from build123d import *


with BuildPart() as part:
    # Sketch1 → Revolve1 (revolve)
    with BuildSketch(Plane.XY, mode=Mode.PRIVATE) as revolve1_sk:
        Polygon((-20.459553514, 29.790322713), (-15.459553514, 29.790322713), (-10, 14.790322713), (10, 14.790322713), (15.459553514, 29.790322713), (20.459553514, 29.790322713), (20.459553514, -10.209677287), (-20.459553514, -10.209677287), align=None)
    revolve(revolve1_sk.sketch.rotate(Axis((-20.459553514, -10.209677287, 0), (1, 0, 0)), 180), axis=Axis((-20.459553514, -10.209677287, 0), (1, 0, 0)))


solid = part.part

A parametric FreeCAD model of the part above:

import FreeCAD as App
import Part
import Sketcher
from FreeCAD import Vector
Q = App.Units.Quantity

doc = App.newDocument("Part")
body = doc.addObject("PartDesign::Body", "Body")

sketch1 = doc.addObject("Sketcher::SketchObject", "Sketch")
body.addObject(sketch1)
sketch1.AttachmentSupport = (doc.XY_Plane, [""])
sketch1.MapMode = "FlatFace"
sketch1.addGeometry([
    Part.LineSegment(Vector(-15, 30, 0), Vector(-20, 30, 0)),
    Part.LineSegment(Vector(-20, 30, 0), Vector(-20, -10, 0)),
    Part.LineSegment(Vector(-20, -10, 0), Vector(20, -10, 0)),
    Part.LineSegment(Vector(20, -10, 0), Vector(20, 30, 0)),
    Part.LineSegment(Vector(20, 30, 0), Vector(15, 30, 0)),
    Part.LineSegment(Vector(15, 30, 0), Vector(10, 15, 0)),
    Part.LineSegment(Vector(10, 15, 0), Vector(-10, 15, 0)),
    Part.LineSegment(Vector(-10, 15, 0), Vector(-15, 30, 0)),
], False)
sketch1.addGeometry(Part.LineSegment(Vector(-20, -10, 0), Vector(20, -10, 0)), True)
sketch1.addConstraint([
    Sketcher.Constraint("Coincident", 0, 2, 1, 1),
    Sketcher.Constraint("Coincident", 1, 2, 2, 1),
    Sketcher.Constraint("Coincident", 2, 2, 3, 1),
    Sketcher.Constraint("Coincident", 3, 2, 4, 1),
    Sketcher.Constraint("Coincident", 4, 2, 5, 1),
    Sketcher.Constraint("Coincident", 5, 2, 6, 1),
    Sketcher.Constraint("Coincident", 6, 2, 7, 1),
    Sketcher.Constraint("Coincident", 7, 2, 0, 1),
    Sketcher.Constraint("Horizontal", 0),
    Sketcher.Constraint("Vertical", 1),
    Sketcher.Constraint("Horizontal", 2),
    Sketcher.Constraint("Vertical", 3),
    Sketcher.Constraint("Horizontal", 4),
    Sketcher.Constraint("Horizontal", 6),
    Sketcher.Constraint("Horizontal", 8),
    Sketcher.Constraint("Coincident", 8, 1, 1, 2),
    Sketcher.Constraint("Symmetric", 0, 2, 3, 2, -2),
    Sketcher.Constraint("Vertical", 3, 2, 8, 2),
    Sketcher.Constraint("Equal", 0, 4),
    Sketcher.Constraint("Equal", 5, 7),
    Sketcher.Constraint("DistanceX", 0, 2, 0, 1, 5.0),
    Sketcher.Constraint("DistanceX", 6, 2, 6, 1, 20.0),
    Sketcher.Constraint("DistanceY", 1, 2, 1, 1, 40.0),
    Sketcher.Constraint("Angle", 5, Q("-110 deg")),
    Sketcher.Constraint("DistanceY", 5, 2, 4, 2, 15.0),
    Sketcher.Constraint("DistanceY", -1, 1, 0, 2, 29.790323),
])
revolution = doc.addObject("PartDesign::Revolution", "Revolution")
body.addObject(revolution)
revolution.Profile = sketch1
revolution.ReferenceAxis = (sketch1, ["Axis0"])
revolution.Angle = 360

doc.recompute()
